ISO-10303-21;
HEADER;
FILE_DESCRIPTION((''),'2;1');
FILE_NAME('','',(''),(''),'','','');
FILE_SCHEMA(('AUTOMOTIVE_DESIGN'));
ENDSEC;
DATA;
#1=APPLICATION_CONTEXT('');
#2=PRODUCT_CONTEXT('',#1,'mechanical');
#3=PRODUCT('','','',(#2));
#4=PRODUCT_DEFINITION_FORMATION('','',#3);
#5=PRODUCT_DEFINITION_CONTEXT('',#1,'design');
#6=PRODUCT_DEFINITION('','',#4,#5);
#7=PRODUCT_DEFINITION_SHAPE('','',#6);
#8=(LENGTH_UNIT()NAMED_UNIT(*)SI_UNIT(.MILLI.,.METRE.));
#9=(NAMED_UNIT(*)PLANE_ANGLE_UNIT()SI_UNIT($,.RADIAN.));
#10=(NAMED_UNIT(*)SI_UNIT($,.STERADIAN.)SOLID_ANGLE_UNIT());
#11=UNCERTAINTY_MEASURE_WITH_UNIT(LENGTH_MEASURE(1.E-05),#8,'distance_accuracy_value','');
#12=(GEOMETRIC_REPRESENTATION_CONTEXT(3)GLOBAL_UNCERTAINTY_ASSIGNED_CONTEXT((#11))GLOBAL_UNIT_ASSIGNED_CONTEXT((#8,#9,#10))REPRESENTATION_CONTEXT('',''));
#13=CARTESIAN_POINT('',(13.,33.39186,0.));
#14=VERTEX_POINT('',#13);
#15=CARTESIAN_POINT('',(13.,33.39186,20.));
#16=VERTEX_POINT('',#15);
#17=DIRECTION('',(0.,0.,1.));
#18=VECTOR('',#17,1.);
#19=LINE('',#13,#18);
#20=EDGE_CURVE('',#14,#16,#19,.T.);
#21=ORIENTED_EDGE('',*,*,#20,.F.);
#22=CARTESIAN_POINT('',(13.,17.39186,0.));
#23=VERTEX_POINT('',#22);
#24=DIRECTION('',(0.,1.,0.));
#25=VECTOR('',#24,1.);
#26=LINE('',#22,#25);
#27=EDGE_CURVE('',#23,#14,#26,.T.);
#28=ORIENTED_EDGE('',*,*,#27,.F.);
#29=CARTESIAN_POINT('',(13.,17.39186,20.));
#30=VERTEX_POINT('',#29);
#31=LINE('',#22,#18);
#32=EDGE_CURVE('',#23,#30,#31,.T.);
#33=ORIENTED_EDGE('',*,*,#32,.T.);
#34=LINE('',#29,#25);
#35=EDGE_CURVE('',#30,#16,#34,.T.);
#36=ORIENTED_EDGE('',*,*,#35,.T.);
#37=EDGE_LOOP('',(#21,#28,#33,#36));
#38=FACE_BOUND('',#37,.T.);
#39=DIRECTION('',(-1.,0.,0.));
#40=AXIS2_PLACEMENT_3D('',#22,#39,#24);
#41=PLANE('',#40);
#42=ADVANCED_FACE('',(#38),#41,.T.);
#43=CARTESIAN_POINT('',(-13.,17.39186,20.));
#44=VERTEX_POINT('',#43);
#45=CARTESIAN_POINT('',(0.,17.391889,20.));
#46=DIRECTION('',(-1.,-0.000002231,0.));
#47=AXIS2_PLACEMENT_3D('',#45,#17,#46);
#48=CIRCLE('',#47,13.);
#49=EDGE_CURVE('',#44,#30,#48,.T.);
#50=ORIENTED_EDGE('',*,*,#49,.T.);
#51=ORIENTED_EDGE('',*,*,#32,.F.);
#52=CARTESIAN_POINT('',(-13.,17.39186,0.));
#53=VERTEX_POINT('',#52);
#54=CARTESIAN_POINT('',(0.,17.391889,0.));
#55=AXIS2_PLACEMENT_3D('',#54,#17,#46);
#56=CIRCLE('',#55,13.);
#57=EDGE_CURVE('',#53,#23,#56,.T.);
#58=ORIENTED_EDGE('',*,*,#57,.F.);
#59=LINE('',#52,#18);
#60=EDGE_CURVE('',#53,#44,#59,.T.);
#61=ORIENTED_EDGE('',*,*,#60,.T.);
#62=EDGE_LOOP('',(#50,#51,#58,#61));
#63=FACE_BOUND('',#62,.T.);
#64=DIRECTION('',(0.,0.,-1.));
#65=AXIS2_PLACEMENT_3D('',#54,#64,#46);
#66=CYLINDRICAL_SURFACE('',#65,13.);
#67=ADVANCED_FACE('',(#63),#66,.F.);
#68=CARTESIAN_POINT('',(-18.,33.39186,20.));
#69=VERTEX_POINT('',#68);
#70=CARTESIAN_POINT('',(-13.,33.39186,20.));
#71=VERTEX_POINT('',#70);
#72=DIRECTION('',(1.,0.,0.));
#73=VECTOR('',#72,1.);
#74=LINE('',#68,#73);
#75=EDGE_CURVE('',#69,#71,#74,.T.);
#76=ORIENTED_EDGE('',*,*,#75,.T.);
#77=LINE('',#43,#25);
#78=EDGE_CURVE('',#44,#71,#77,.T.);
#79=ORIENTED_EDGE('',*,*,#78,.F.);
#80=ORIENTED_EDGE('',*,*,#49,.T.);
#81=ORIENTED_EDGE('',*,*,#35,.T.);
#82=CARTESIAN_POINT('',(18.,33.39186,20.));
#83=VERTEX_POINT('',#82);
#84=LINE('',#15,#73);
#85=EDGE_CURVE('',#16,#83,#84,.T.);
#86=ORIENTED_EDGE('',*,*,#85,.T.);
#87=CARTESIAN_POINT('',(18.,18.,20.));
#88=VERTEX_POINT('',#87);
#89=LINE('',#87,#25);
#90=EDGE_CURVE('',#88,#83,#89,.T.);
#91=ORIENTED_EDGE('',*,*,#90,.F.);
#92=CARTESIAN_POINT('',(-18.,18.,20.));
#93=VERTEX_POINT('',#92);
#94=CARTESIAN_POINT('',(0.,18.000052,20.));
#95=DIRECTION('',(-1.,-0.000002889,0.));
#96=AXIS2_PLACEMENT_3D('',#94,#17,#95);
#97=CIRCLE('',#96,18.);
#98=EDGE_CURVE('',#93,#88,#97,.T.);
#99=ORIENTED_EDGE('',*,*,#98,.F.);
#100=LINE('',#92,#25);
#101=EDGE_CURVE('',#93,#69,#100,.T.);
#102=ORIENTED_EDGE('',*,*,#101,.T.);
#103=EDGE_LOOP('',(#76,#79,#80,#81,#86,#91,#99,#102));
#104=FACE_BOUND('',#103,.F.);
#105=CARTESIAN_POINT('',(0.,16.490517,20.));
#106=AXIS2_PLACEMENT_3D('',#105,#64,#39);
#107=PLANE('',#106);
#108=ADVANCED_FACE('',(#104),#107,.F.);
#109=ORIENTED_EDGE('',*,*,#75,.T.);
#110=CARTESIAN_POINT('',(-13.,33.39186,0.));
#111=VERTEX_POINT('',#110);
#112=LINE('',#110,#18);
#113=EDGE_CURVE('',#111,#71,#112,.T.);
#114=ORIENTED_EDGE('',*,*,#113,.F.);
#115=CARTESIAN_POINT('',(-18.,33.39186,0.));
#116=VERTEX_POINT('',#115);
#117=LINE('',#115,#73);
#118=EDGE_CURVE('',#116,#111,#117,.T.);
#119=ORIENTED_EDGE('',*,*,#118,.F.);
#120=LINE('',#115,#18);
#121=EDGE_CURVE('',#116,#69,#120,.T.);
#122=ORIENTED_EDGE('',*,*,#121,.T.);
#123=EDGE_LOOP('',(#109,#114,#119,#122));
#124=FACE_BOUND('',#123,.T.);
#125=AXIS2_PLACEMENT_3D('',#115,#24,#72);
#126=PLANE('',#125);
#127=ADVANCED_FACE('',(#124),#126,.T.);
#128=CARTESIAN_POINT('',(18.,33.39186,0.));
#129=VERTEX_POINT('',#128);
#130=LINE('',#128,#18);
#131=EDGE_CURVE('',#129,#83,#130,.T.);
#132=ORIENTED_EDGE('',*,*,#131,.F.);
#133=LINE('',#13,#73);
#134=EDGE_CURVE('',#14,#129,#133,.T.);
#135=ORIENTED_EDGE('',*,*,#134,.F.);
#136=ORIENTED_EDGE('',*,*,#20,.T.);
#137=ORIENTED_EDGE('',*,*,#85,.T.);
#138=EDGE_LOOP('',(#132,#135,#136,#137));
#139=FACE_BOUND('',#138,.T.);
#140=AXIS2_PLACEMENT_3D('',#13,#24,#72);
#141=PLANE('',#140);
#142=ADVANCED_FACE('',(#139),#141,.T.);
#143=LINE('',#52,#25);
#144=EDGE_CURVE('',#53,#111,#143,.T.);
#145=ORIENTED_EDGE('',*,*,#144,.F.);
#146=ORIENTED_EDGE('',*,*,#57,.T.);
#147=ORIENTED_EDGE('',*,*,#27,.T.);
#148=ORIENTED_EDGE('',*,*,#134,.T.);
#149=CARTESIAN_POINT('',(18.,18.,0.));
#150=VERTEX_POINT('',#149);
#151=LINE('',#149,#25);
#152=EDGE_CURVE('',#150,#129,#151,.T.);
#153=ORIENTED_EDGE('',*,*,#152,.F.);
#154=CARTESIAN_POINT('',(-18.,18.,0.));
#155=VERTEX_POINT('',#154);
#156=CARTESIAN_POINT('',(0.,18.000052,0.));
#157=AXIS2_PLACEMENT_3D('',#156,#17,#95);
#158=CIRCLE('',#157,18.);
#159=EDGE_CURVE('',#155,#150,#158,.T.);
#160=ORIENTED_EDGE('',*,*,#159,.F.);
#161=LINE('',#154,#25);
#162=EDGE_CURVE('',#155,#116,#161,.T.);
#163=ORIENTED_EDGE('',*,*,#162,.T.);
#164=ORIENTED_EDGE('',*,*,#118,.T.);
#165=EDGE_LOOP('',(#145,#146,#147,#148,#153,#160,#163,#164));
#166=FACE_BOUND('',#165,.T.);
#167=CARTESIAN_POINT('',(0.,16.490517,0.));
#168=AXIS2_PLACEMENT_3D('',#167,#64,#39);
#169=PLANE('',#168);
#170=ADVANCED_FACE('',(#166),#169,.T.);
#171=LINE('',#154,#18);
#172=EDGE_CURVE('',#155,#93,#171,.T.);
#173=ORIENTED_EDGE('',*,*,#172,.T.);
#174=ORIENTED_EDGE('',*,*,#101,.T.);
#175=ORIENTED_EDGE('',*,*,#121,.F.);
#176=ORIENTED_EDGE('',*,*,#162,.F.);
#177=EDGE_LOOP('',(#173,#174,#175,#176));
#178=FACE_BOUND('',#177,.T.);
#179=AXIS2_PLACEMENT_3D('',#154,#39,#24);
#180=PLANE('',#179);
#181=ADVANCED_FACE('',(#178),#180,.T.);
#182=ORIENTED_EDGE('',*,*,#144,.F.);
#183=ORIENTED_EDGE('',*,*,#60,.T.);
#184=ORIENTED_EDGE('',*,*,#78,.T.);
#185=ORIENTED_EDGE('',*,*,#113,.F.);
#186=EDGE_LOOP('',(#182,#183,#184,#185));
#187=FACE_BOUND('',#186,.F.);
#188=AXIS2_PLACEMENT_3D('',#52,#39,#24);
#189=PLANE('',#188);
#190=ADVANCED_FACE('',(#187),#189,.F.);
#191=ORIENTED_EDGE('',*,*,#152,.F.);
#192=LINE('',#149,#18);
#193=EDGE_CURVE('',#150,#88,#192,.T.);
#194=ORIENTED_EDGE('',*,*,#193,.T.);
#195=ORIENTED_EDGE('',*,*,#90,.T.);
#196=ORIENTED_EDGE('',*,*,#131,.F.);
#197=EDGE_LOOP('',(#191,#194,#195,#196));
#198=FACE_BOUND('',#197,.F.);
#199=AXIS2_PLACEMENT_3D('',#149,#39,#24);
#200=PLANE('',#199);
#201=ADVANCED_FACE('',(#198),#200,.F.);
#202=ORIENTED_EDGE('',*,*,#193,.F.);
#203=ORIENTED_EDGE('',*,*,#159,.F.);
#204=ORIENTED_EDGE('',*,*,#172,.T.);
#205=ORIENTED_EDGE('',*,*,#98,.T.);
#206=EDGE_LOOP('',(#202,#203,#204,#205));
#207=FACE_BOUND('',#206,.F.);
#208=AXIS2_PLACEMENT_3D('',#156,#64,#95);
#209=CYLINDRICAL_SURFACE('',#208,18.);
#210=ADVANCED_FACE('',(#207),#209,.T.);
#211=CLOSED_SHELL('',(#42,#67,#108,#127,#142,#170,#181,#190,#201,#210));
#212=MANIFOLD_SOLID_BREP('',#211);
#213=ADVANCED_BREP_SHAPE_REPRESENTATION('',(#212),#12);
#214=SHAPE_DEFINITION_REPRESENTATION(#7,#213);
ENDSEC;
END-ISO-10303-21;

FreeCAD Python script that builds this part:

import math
import FreeCAD as App
import Part
import Sketcher

V = App.Vector
Q = App.Units.Quantity

doc = App.newDocument("Part")
body = doc.addObject("PartDesign::Body", "Body")

# Sketch on XY plane
sketch1 = body.newObject("Sketcher::SketchObject", "Sketch")
sketch1.AttachmentSupport = (doc.getObject("XY_Plane"), [""])
sketch1.MapMode = "FlatFace"
sketch1.addGeometry([
    Part.ArcOfCircle(Part.Circle(V(0, 17, 0), V(0, 0, 1), 13), math.radians(-180), math.radians(0)),  # 0
    Part.LineSegment(V(-13, 17, 0), V(-13, 33, 0)),  # 1
    Part.LineSegment(V(-13, 33, 0), V(-18, 33, 0)),  # 2
    Part.LineSegment(V(-18, 33, 0), V(-18, 18, 0)),  # 3
    Part.ArcOfCircle(Part.Circle(V(0, 18, 0), V(0, 0, 1), 18), math.radians(-180), math.radians(0)),  # 4
    Part.LineSegment(V(18, 18, 0), V(18, 33, 0)),  # 5
    Part.LineSegment(V(18, 33, 0), V(13, 33, 0)),  # 6
    Part.LineSegment(V(13, 33, 0), V(13, 17, 0)),  # 7
], False)
sketch1.addConstraint([
    Sketcher.Constraint("Coincident", 0, 1, 1, 1),
    Sketcher.Constraint("Coincident", 1, 2, 2, 1),
    Sketcher.Constraint("Coincident", 2, 2, 3, 1),
    Sketcher.Constraint("Coincident", 3, 2, 4, 1),
    Sketcher.Constraint("Coincident", 4, 2, 5, 1),
    Sketcher.Constraint("Coincident", 5, 2, 6, 1),
    Sketcher.Constraint("Coincident", 6, 2, 7, 1),
    Sketcher.Constraint("Coincident", 7, 2, 0, 2),
    Sketcher.Constraint("Vertical", 1),
    Sketcher.Constraint("Horizontal", 2),
    Sketcher.Constraint("Vertical", 3),
    Sketcher.Constraint("Vertical", 5),
    Sketcher.Constraint("Horizontal", 6),
    Sketcher.Constraint("Vertical", 7),
    Sketcher.Constraint("Symmetric", 3, 2, 4, 2, -2),
    Sketcher.Constraint("Symmetric", 1, 2, 6, 2, -2),
    Sketcher.Constraint("Horizontal", 0, 1, 7, 2),
    Sketcher.Constraint("Radius", 0, Q("13 mm")),
    Sketcher.Constraint("Radius", 4, Q("18 mm")),
    Sketcher.Constraint("DistanceY", 1, 1, 1, 2, Q("16 mm")),
    Sketcher.Constraint("DistanceY", -1, 1, 3, 2, Q("18 mm")),
    Sketcher.Constraint("DistanceY", 3, 2, 3, 1, Q("15.39186 mm")),
    Sketcher.Constraint("DistanceY", -1, 1, 0, 3, Q("17.391889 mm")),
    Sketcher.Constraint("DistanceY", -1, 1, 4, 3, Q("18.000052 mm")),
])
pad1 = body.newObject("PartDesign::Pad", "Pad")
pad1.Profile = sketch1
pad1.Length = 20

doc.recompute()
